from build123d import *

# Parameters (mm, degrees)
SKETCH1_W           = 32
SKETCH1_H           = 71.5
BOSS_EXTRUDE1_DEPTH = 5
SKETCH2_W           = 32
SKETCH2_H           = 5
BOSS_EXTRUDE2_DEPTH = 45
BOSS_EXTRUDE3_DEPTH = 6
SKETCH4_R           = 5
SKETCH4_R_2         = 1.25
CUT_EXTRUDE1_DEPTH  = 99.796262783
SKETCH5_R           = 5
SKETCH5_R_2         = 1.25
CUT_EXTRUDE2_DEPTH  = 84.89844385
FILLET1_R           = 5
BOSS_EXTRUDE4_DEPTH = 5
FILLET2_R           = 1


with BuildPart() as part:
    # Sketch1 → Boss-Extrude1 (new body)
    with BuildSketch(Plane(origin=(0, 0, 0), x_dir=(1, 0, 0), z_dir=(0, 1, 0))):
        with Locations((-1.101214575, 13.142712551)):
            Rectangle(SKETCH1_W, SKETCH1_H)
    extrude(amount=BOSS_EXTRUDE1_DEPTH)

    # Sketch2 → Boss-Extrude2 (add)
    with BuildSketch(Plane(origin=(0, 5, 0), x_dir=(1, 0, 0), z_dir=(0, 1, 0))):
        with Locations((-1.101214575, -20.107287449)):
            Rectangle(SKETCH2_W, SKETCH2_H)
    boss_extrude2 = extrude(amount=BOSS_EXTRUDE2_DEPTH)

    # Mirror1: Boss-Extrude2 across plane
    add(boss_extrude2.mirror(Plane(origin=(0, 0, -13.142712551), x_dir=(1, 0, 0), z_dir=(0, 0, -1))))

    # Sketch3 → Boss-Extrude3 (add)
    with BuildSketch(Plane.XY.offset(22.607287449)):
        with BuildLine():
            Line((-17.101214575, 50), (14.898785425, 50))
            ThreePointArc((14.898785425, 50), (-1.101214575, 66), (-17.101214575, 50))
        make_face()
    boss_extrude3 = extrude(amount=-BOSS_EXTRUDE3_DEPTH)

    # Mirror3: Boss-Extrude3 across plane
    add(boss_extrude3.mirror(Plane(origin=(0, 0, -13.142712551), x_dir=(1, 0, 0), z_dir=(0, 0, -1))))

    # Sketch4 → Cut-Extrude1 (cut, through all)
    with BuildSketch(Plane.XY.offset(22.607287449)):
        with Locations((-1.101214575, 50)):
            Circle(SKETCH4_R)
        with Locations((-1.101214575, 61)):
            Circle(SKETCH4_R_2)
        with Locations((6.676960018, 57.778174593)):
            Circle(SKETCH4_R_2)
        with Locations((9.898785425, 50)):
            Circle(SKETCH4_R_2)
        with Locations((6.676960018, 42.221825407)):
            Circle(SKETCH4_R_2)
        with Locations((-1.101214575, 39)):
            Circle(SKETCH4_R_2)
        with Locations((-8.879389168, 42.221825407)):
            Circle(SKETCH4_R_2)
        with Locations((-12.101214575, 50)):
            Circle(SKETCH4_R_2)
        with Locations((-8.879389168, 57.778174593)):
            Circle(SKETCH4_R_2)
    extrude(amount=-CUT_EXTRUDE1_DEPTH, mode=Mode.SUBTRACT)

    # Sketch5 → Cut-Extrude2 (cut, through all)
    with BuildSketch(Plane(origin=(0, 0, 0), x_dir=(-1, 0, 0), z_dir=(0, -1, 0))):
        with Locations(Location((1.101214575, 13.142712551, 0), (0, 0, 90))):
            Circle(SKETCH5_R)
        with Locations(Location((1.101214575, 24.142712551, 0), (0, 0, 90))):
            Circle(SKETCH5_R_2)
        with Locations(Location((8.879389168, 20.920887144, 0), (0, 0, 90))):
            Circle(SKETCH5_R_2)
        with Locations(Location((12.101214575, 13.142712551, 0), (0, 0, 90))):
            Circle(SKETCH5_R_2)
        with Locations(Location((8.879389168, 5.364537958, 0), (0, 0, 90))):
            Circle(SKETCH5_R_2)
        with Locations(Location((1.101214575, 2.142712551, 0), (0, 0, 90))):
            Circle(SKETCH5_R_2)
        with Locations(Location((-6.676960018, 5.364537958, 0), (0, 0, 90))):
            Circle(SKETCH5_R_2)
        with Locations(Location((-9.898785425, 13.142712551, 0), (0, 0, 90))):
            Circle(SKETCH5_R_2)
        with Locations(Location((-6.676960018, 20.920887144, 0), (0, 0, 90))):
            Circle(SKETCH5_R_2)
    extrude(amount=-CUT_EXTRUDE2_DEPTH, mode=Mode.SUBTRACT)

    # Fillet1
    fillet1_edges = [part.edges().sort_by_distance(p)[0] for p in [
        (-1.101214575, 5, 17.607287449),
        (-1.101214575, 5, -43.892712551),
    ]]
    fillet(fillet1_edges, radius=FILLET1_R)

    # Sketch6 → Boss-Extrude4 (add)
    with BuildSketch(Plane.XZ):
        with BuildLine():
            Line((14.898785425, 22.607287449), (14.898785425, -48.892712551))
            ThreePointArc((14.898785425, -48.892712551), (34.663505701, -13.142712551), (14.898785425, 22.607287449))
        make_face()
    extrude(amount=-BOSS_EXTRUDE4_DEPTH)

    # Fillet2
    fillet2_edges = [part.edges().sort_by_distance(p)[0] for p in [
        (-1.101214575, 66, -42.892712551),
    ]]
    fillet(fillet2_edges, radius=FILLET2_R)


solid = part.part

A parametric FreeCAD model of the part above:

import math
import FreeCAD as App
import Part
import Sketcher

V = App.Vector


def edges_at(feature, points):
    """Names of the edges that pass closest to the given points."""
    edges = feature.Shape.Edges
    near = lambda p: min(range(len(edges)), key=lambda i: edges[i].distToShape(Part.Vertex(*p))[0])
    return sorted({f"Edge{near(p) + 1}" for p in points})


def add_polygon(sketch, points):
    """Adds a closed chain of lines whose ends are joined by coincident constraints."""
    first, n = sketch.GeometryCount, len(points)
    for a, b in zip(points, points[1:] + points[:1]):
        sketch.addGeometry(Part.LineSegment(App.Vector(*a, 0), App.Vector(*b, 0)), False)
    for i in range(n):
        sketch.addConstraint(Sketcher.Constraint("Coincident", first + i, 2, first + (i + 1) % n, 1))

doc = App.newDocument("Part")
params = doc.addObject("Spreadsheet::Sheet", "Params")
for row, (alias, value) in enumerate([
    ("sketch1_width", "32 mm"),
    ("sketch1_height", "71.5 mm"),
    ("pad1_length", "5 mm"),
    ("sketch2_width", "32 mm"),
    ("sketch2_height", "5 mm"),
    ("pad2_length", "45 mm"),
    ("sketch3_radius", "16 mm"),
    ("pad3_length", "6 mm"),
    ("sketch4_diameter", "10 mm"),
    ("sketch4_diameter2", "2.5 mm"),
    ("sketch5_diameter", "10 mm"),
    ("sketch5_diameter2", "2.5 mm"),
    ("fillet_radius", "5 mm"),
    ("sketch6_height", "71.5 mm"),
    ("pad4_length", "5 mm"),
    ("fillet2_radius", "1 mm"),
], start=1):
    params.set(f"A{row}", alias)
    params.set(f"B{row}", "=" + value)
    params.setAlias(f"B{row}", alias)

body = doc.addObject("PartDesign::Body", "Body")

# Sketch on XZ plane
sketch1 = doc.addObject("Sketcher::SketchObject", "Sketch")
body.addObject(sketch1)
sketch1.AttachmentSupport = (doc.XZ_Plane, [""])
sketch1.MapMode = "FlatFace"
add_polygon(sketch1, [(-17, -49), (-17, 23), (15, 23), (15, -49)])  # lines 0-3
sketch1.addConstraint(Sketcher.Constraint("Vertical", 0))
sketch1.addConstraint(Sketcher.Constraint("Horizontal", 1))
sketch1.addConstraint(Sketcher.Constraint("Vertical", 2))
sketch1.addConstraint(Sketcher.Constraint("Horizontal", 3))
sketch1.addConstraint(Sketcher.Constraint("DistanceX", 1, 1, 1, 2, 32.0))
sketch1.addConstraint(Sketcher.Constraint("DistanceY", 0, 1, 0, 2, 71.5))
sketch1.addConstraint(Sketcher.Constraint("DistanceX", 0, 2, -1, 1, 17.101215))
sketch1.addConstraint(Sketcher.Constraint("DistanceY", -1, 1, 0, 2, 22.607287))
sketch1.setExpression("Constraints[8]", "Params.sketch1_width")
sketch1.setExpression("Constraints[9]", "Params.sketch1_height")
pad1 = doc.addObject("PartDesign::Pad", "Pad")
body.addObject(pad1)
pad1.Profile = sketch1
pad1.setExpression("Length", "Params.pad1_length")
pad1.Reversed = True

# Sketch on XZ plane
sketch2 = doc.addObject("Sketcher::SketchObject", "Sketch001")
body.addObject(sketch2)
sketch2.AttachmentSupport = (doc.XZ_Plane, [""])
sketch2.MapMode = "FlatFace"
sketch2.AttachmentOffset = App.Placement(V(0, 0, -5), App.Rotation())
add_polygon(sketch2, [(-17, 18), (-17, 23), (15, 23), (15, 18)])  # lines 0-3
sketch2.addConstraint(Sketcher.Constraint("Vertical", 0))
sketch2.addConstraint(Sketcher.Constraint("Horizontal", 1))
sketch2.addConstraint(Sketcher.Constraint("Vertical", 2))
sketch2.addConstraint(Sketcher.Constraint("Horizontal", 3))
sketch2.addConstraint(Sketcher.Constraint("DistanceX", 1, 1, 1, 2, 32.0))
sketch2.addConstraint(Sketcher.Constraint("DistanceY", 0, 1, 0, 2, 5.0))
sketch2.addConstraint(Sketcher.Constraint("DistanceX", 0, 2, -1, 1, 17.101215))
sketch2.addConstraint(Sketcher.Constraint("DistanceY", -1, 1, 0, 2, 22.607287))
sketch2.setExpression("Constraints[8]", "Params.sketch2_width")
sketch2.setExpression("Constraints[9]", "Params.sketch2_height")
pad2 = doc.addObject("PartDesign::Pad", "Pad001")
body.addObject(pad2)
pad2.Profile = sketch2
pad2.setExpression("Length", "Params.pad2_length")
pad2.Reversed = True
doc.recompute()

datumplane = doc.addObject("PartDesign::Plane", "DatumPlane")
body.addObject(datumplane)
datumplane.AttachmentSupport = (doc.XY_Plane, [""])
datumplane.MapMode = "FlatFace"
datumplane.AttachmentOffset = App.Placement(V(0, 0, -13.142713), App.Rotation())
mirrored = doc.addObject("PartDesign::Mirrored", "Mirrored")
body.addObject(mirrored)
mirrored.Originals = [pad2]
mirrored.MirrorPlane = (datumplane, [""])
body.Tip = mirrored

# Sketch on XY plane
sketch3 = doc.addObject("Sketcher::SketchObject", "Sketch002")
body.addObject(sketch3)
sketch3.AttachmentSupport = (doc.XY_Plane, [""])
sketch3.MapMode = "FlatFace"
sketch3.AttachmentOffset = App.Placement(V(0, 0, 22.607287), App.Rotation())
sketch3.addGeometry(Part.LineSegment(V(-17, 50, 0), V(15, 50, 0)), False)
sketch3.addGeometry(Part.ArcOfCircle(Part.Circle(V(-1, 50, 0), V(0, 0, 1), 16), math.radians(0), math.radians(180)), False)
sketch3.addConstraint(Sketcher.Constraint("Coincident", 0, 1, 1, 2))
sketch3.addConstraint(Sketcher.Constraint("Coincident", 1, 1, 0, 2))
sketch3.addConstraint(Sketcher.Constraint("Horizontal", 0))
sketch3.addConstraint(Sketcher.Constraint("Horizontal", 1, 3, 0, 1))
sketch3.addConstraint(Sketcher.Constraint("Radius", 1, 16.0))
sketch3.addConstraint(Sketcher.Constraint("DistanceY", -1, 1, 1, 3, 50.0))
sketch3.addConstraint(Sketcher.Constraint("DistanceX", 1, 3, -1, 1, 1.101215))
sketch3.setExpression("Constraints[4]", "Params.sketch3_radius")
pad3 = doc.addObject("PartDesign::Pad", "Pad002")
body.addObject(pad3)
pad3.Profile = sketch3
pad3.setExpression("Length", "Params.pad3_length")
pad3.Reversed = True
doc.recompute()

datumplane2 = doc.addObject("PartDesign::Plane", "DatumPlane001")
body.addObject(datumplane2)
datumplane2.AttachmentSupport = (doc.XY_Plane, [""])
datumplane2.MapMode = "FlatFace"
datumplane2.AttachmentOffset = App.Placement(V(0, 0, -13.142713), App.Rotation())
mirrored2 = doc.addObject("PartDesign::Mirrored", "Mirrored001")
body.addObject(mirrored2)
mirrored2.Originals = [pad3]
mirrored2.MirrorPlane = (datumplane2, [""])
body.Tip = mirrored2

# Sketch on XY plane
sketch4 = doc.addObject("Sketcher::SketchObject", "Sketch003")
body.addObject(sketch4)
sketch4.AttachmentSupport = (doc.XY_Plane, [""])
sketch4.MapMode = "FlatFace"
sketch4.AttachmentOffset = App.Placement(V(0, 0, 22.607287), App.Rotation())
sketch4.addGeometry(Part.Circle(V(-1.1, 50, 0), V(0, 0, 1), 5), False)
sketch4.addGeometry(Part.Circle(V(-1.1, 61, 0), V(0, 0, 1), 1.2), False)
sketch4.addGeometry(Part.Circle(V(6.7, 57.8, 0), V(0, 0, 1), 1.2), False)
sketch4.addGeometry(Part.Circle(V(9.9, 50, 0), V(0, 0, 1), 1.2), False)
sketch4.addGeometry(Part.Circle(V(6.7, 42.2, 0), V(0, 0, 1), 1.2), False)
sketch4.addGeometry(Part.Circle(V(-1.1, 39, 0), V(0, 0, 1), 1.2), False)
sketch4.addGeometry(Part.Circle(V(-8.9, 42.2, 0), V(0, 0, 1), 1.2), False)
sketch4.addGeometry(Part.Circle(V(-12.1, 50, 0), V(0, 0, 1), 1.2), False)
sketch4.addGeometry(Part.Circle(V(-8.9, 57.8, 0), V(0, 0, 1), 1.2), False)
sketch4.addConstraint(Sketcher.Constraint("Equal", 1, 2))
sketch4.addConstraint(Sketcher.Constraint("Equal", 2, 3))
sketch4.addConstraint(Sketcher.Constraint("Equal", 3, 4))
sketch4.addConstraint(Sketcher.Constraint("Equal", 4, 5))
sketch4.addConstraint(Sketcher.Constraint("Equal", 5, 6))
sketch4.addConstraint(Sketcher.Constraint("Equal", 6, 7))
sketch4.addConstraint(Sketcher.Constraint("Equal", 7, 8))
sketch4.addConstraint(Sketcher.Constraint("Horizontal", 0, 3, 3, 3))
sketch4.addConstraint(Sketcher.Constraint("Horizontal", 4, 3, 6, 3))
sketch4.addConstraint(Sketcher.Constraint("Horizontal", 3, 3, 7, 3))
sketch4.addConstraint(Sketcher.Constraint("Horizontal", 2, 3, 8, 3))
sketch4.addConstraint(Sketcher.Constraint("Vertical", 0, 3, 1, 3))
sketch4.addConstraint(Sketcher.Constraint("Vertical", 2, 3, 4, 3))
sketch4.addConstraint(Sketcher.Constraint("Vertical", 1, 3, 5, 3))
sketch4.addConstraint(Sketcher.Constraint("Vertical", 6, 3, 8, 3))
sketch4.addConstraint(Sketcher.Constraint("Diameter", 0, 10.0))
sketch4.addConstraint(Sketcher.Constraint("Diameter", 1, 2.5))
sketch4.addConstraint(Sketcher.Constraint("DistanceY", -1, 1, 0, 3, 50.0))
sketch4.addConstraint(Sketcher.Constraint("DistanceY", -1, 1, 1, 3, 61.0))
sketch4.addConstraint(Sketcher.Constraint("DistanceY", -1, 1, 5, 3, 39.0))
sketch4.addConstraint(Sketcher.Constraint("DistanceX", 0, 3, 3, 3, 11.0))
sketch4.addConstraint(Sketcher.Constraint("DistanceX", 7, 3, 0, 3, 11.0))
sketch4.addConstraint(Sketcher.Constraint("DistanceX", -1, 1, 2, 3, 6.67696))
sketch4.addConstraint(Sketcher.Constraint("DistanceX", 6, 3, -1, 1, 8.879389))
sketch4.addConstraint(Sketcher.Constraint("DistanceY", 4, 3, 2, 3, 15.556349))
sketch4.addConstraint(Sketcher.Constraint("DistanceX", 0, 3, -1, 1, 1.101215))
sketch4.addConstraint(Sketcher.Constraint("DistanceY", -1, 1, 2, 3, 57.778175))
sketch4.setExpression("Constraints[15]", "Params.sketch4_diameter")
sketch4.setExpression("Constraints[16]", "Params.sketch4_diameter2")
pocket1 = doc.addObject("PartDesign::Pocket", "Pocket")
body.addObject(pocket1)
pocket1.Profile = sketch4
pocket1.Type = "ThroughAll"

# Sketch on XZ plane
sketch5 = doc.addObject("Sketcher::SketchObject", "Sketch004")
body.addObject(sketch5)
sketch5.AttachmentSupport = (doc.XZ_Plane, [""])
sketch5.MapMode = "FlatFace"
sketch5.addGeometry(Part.Circle(V(-1.1, -13.1, 0), V(0, 0, 1), 5), False)
sketch5.addGeometry(Part.Circle(V(-1.1, -24.1, 0), V(0, 0, 1), 1.2), False)
sketch5.addGeometry(Part.Circle(V(-8.9, -20.9, 0), V(0, 0, 1), 1.2), False)
sketch5.addGeometry(Part.Circle(V(-12.1, -13.1, 0), V(0, 0, 1), 1.2), False)
sketch5.addGeometry(Part.Circle(V(-8.9, -5.4, 0), V(0, 0, 1), 1.2), False)
sketch5.addGeometry(Part.Circle(V(-1.1, -2.1, 0), V(0, 0, 1), 1.2), False)
sketch5.addGeometry(Part.Circle(V(6.7, -5.4, 0), V(0, 0, 1), 1.2), False)
sketch5.addGeometry(Part.Circle(V(9.9, -13.1, 0), V(0, 0, 1), 1.2), False)
sketch5.addGeometry(Part.Circle(V(6.7, -20.9, 0), V(0, 0, 1), 1.2), False)
sketch5.addConstraint(Sketcher.Constraint("Equal", 1, 2))
sketch5.addConstraint(Sketcher.Constraint("Equal", 2, 3))
sketch5.addConstraint(Sketcher.Constraint("Equal", 3, 4))
sketch5.addConstraint(Sketcher.Constraint("Equal", 4, 5))
sketch5.addConstraint(Sketcher.Constraint("Equal", 5, 6))
sketch5.addConstraint(Sketcher.Constraint("Equal", 6, 7))
sketch5.addConstraint(Sketcher.Constraint("Equal", 7, 8))
sketch5.addConstraint(Sketcher.Constraint("Horizontal", 0, 3, 3, 3))
sketch5.addConstraint(Sketcher.Constraint("Horizontal", 4, 3, 6, 3))
sketch5.addConstraint(Sketcher.Constraint("Horizontal", 3, 3, 7, 3))
sketch5.addConstraint(Sketcher.Constraint("Horizontal", 2, 3, 8, 3))
sketch5.addConstraint(Sketcher.Constraint("Vertical", 0, 3, 1, 3))
sketch5.addConstraint(Sketcher.Constraint("Vertical", 2, 3, 4, 3))
sketch5.addConstraint(Sketcher.Constraint("Vertical", 1, 3, 5, 3))
sketch5.addConstraint(Sketcher.Constraint("Vertical", 6, 3, 8, 3))
sketch5.addConstraint(Sketcher.Constraint("Diameter", 0, 10.0))
sketch5.addConstraint(Sketcher.Constraint("Diameter", 1, 2.5))
sketch5.addConstraint(Sketcher.Constraint("DistanceY", 1, 3, 0, 3, 11.0))
sketch5.addConstraint(Sketcher.Constraint("DistanceX", 3, 3, 0, 3, 11.0))
sketch5.addConstraint(Sketcher.Constraint("DistanceY", 0, 3, 5, 3, 11.0))
sketch5.addConstraint(Sketcher.Constraint("DistanceX", 0, 3, 7, 3, 11.0))
sketch5.addConstraint(Sketcher.Constraint("DistanceX", 2, 3, -1, 1, 8.879389))
sketch5.addConstraint(Sketcher.Constraint("DistanceX", -1, 1, 6, 3, 6.67696))
sketch5.addConstraint(Sketcher.Constraint("DistanceY", 2, 3, 4, 3, 15.556349))
sketch5.addConstraint(Sketcher.Constraint("DistanceX", 0, 3, -1, 1, 1.101215))
sketch5.addConstraint(Sketcher.Constraint("DistanceY", 0, 3, -1, 1, 13.142713))
sketch5.addConstraint(Sketcher.Constraint("DistanceY", 2, 3, -1, 1, 20.920887))
sketch5.setExpression("Constraints[15]", "Params.sketch5_diameter")
sketch5.setExpression("Constraints[16]", "Params.sketch5_diameter2")
pocket2 = doc.addObject("PartDesign::Pocket", "Pocket001")
body.addObject(pocket2)
pocket2.Profile = sketch5
pocket2.Type = "ThroughAll"
doc.recompute()

fillet = doc.addObject("PartDesign::Fillet", "Fillet")
body.addObject(fillet)
fillet.Base = (pocket2, edges_at(pocket2, [(-1.101, 5, 17.607), (-1.101, 5, -43.893)]))
fillet.setExpression("Radius", "Params.fillet_radius")

# Sketch on XZ plane
sketch6 = doc.addObject("Sketcher::SketchObject", "Sketch005")
body.addObject(sketch6)
sketch6.AttachmentSupport = (doc.XZ_Plane, [""])
sketch6.MapMode = "FlatFace"
sketch6.addGeometry(Part.LineSegment(V(15, 23, 0), V(15, -49, 0)), False)
sketch6.addGeometry(Part.ArcOfCircle(Part.Circle(V(-8, -13, 0), V(0, 0, 1), 42), math.radians(-58), math.radians(58)), False)
sketch6.addConstraint(Sketcher.Constraint("Coincident", 0, 1, 1, 2))
sketch6.addConstraint(Sketcher.Constraint("Coincident", 1, 1, 0, 2))
sketch6.addConstraint(Sketcher.Constraint("Vertical", 0))
sketch6.addConstraint(Sketcher.Constraint("DistanceY", 0, 2, 0, 1, 71.5))
sketch6.addConstraint(Sketcher.Constraint("Radius", 1, 42.214275))
sketch6.addConstraint(Sketcher.Constraint("DistanceX", 1, 3, -1, 1, 7.550769))
sketch6.addConstraint(Sketcher.Constraint("DistanceY", 1, 3, -1, 1, 13.142713))
sketch6.setExpression("Constraints[3]", "Params.sketch6_height")
pad4 = doc.addObject("PartDesign::Pad", "Pad003")
body.addObject(pad4)
pad4.Profile = sketch6
pad4.setExpression("Length", "Params.pad4_length")
pad4.Reversed = True
doc.recompute()

fillet2 = doc.addObject("PartDesign::Fillet", "Fillet001")
body.addObject(fillet2)
fillet2.Base = (pad4, edges_at(pad4, [(-1.101, 66, -42.893)]))
fillet2.setExpression("Radius", "Params.fillet2_radius")

doc.recompute()
